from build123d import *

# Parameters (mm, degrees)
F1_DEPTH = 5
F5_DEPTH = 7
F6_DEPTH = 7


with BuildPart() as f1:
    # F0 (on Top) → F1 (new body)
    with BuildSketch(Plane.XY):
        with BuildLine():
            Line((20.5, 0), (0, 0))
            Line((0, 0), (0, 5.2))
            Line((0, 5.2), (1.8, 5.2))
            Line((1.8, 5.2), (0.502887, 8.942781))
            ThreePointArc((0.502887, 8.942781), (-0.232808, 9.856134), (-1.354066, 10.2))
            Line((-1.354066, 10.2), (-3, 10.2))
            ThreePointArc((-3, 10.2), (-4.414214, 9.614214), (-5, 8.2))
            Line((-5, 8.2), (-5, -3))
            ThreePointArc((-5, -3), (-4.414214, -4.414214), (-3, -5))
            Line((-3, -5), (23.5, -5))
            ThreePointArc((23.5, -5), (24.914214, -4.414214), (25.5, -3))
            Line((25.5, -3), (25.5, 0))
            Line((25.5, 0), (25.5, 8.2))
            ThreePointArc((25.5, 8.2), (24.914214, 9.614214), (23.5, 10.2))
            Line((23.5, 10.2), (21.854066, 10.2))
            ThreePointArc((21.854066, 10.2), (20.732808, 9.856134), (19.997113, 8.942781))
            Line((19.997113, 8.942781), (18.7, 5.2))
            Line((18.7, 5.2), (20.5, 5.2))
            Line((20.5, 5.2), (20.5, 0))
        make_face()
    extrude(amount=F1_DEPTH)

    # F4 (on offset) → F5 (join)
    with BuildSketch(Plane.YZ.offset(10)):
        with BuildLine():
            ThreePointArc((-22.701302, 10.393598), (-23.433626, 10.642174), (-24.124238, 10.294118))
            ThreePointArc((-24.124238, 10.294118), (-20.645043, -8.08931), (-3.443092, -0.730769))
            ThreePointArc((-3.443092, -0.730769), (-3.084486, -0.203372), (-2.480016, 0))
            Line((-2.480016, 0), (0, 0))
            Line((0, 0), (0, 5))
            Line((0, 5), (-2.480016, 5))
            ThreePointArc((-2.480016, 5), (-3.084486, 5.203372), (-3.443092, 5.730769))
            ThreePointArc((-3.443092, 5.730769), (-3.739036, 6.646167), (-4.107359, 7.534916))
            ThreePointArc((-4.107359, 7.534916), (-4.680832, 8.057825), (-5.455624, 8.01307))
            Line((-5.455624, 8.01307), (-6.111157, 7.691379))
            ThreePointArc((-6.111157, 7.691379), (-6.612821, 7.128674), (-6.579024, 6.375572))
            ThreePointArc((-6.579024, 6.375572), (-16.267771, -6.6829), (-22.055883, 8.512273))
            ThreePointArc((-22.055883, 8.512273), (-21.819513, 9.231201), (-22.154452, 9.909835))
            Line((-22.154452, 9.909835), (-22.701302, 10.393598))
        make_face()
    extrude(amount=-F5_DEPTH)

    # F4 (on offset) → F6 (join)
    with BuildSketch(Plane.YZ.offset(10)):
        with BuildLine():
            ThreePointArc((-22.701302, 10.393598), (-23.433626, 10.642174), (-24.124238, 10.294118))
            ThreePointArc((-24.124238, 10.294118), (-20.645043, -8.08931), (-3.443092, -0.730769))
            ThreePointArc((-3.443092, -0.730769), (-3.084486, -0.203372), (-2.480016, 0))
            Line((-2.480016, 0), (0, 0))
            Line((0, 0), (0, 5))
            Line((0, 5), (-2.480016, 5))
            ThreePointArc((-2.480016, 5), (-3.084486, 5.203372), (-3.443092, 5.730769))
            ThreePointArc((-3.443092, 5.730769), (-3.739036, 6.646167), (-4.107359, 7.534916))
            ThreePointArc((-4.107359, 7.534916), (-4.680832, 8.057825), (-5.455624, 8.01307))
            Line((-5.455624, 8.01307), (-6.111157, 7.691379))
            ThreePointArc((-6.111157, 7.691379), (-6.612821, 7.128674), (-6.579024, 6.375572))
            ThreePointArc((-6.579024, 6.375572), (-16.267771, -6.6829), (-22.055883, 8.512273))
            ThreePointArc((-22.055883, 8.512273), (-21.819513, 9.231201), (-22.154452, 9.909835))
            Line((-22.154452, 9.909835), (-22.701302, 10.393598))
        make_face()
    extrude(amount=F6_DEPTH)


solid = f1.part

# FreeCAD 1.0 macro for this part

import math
import FreeCAD as App
import Part
import Sketcher
Q = App.Units.Quantity

doc = App.newDocument("Part")
body = doc.addObject("PartDesign::Body", "Body")

# Sketch on XY plane
sketch1 = body.newObject("Sketcher::SketchObject", "Sketch")
sketch1.AttachmentSupport = (doc.getObject("XY_Plane"), [""])
sketch1.MapMode = "FlatFace"
sketch1.addGeometry(Part.LineSegment(App.Vector(20.5, 0, 0), App.Vector(0, 0, 0)), False)
sketch1.addGeometry(Part.LineSegment(App.Vector(0, 0, 0), App.Vector(0, 5.2, 0)), False)
sketch1.addGeometry(Part.LineSegment(App.Vector(0, 5.2, 0), App.Vector(1.8, 5.2, 0)), False)
sketch1.addGeometry(Part.LineSegment(App.Vector(1.8, 5.2, 0), App.Vector(0.5, 8.9, 0)), False)
sketch1.addGeometry(Part.ArcOfCircle(Part.Circle(App.Vector(-1.4, 8.2, 0), App.Vector(0, 0, 1), 2), math.radians(22), math.radians(90)), False)
sketch1.addGeometry(Part.LineSegment(App.Vector(-1.4, 10.2, 0), App.Vector(-3, 10.2, 0)), False)
sketch1.addGeometry(Part.ArcOfCircle(Part.Circle(App.Vector(-3, 8.2, 0), App.Vector(0, 0, 1), 2), math.radians(90), math.radians(180)), False)
sketch1.addGeometry(Part.LineSegment(App.Vector(-5, 8.2, 0), App.Vector(-5, -3, 0)), False)
sketch1.addGeometry(Part.ArcOfCircle(Part.Circle(App.Vector(-3, -3, 0), App.Vector(0, 0, 1), 2), math.radians(180), math.radians(270)), False)
sketch1.addGeometry(Part.LineSegment(App.Vector(-3, -5, 0), App.Vector(23.5, -5, 0)), False)
sketch1.addGeometry(Part.ArcOfCircle(Part.Circle(App.Vector(23.5, -3, 0), App.Vector(0, 0, 1), 2), math.radians(-90), math.radians(0)), False)
sketch1.addGeometry(Part.LineSegment(App.Vector(25.5, -3, 0), App.Vector(25.5, 8.2, 0)), False)
sketch1.addGeometry(Part.ArcOfCircle(Part.Circle(App.Vector(23.5, 8.2, 0), App.Vector(0, 0, 1), 2), math.radians(0), math.radians(90)), False)
sketch1.addGeometry(Part.LineSegment(App.Vector(23.5, 10.2, 0), App.Vector(21.9, 10.2, 0)), False)
sketch1.addGeometry(Part.ArcOfCircle(Part.Circle(App.Vector(21.9, 8.2, 0), App.Vector(0, 0, 1), 2), math.radians(90), math.radians(158)), False)
sketch1.addGeometry(Part.LineSegment(App.Vector(20, 8.9, 0), App.Vector(18.7, 5.2, 0)), False)
sketch1.addGeometry(Part.LineSegment(App.Vector(18.7, 5.2, 0), App.Vector(20.5, 5.2, 0)), False)
sketch1.addGeometry(Part.LineSegment(App.Vector(20.5, 5.2, 0), App.Vector(20.5, 0, 0)), False)
sketch1.addConstraint(Sketcher.Constraint("Coincident", 0, 2, 1, 1))
sketch1.addConstraint(Sketcher.Constraint("Coincident", 1, 2, 2, 1))
sketch1.addConstraint(Sketcher.Constraint("Coincident", 2, 2, 3, 1))
sketch1.addConstraint(Sketcher.Constraint("Coincident", 3, 2, 4, 1))
sketch1.addConstraint(Sketcher.Constraint("Tangent", 4, 2, 5, 1))
sketch1.addConstraint(Sketcher.Constraint("Tangent", 5, 2, 6, 1))
sketch1.addConstraint(Sketcher.Constraint("Tangent", 6, 2, 7, 1))
sketch1.addConstraint(Sketcher.Constraint("Tangent", 7, 2, 8, 1))
sketch1.addConstraint(Sketcher.Constraint("Tangent", 8, 2, 9, 1))
sketch1.addConstraint(Sketcher.Constraint("Tangent", 9, 2, 10, 1))
sketch1.addConstraint(Sketcher.Constraint("Tangent", 10, 2, 11, 1))
sketch1.addConstraint(Sketcher.Constraint("Tangent", 11, 2, 12, 1))
sketch1.addConstraint(Sketcher.Constraint("Tangent", 12, 2, 13, 1))
sketch1.addConstraint(Sketcher.Constraint("Tangent", 13, 2, 14, 1))
sketch1.addConstraint(Sketcher.Constraint("Coincident", 14, 2, 15, 1))
sketch1.addConstraint(Sketcher.Constraint("Coincident", 15, 2, 16, 1))
sketch1.addConstraint(Sketcher.Constraint("Coincident", 16, 2, 17, 1))
sketch1.addConstraint(Sketcher.Constraint("Coincident", 17, 2, 0, 1))
sketch1.addConstraint(Sketcher.Constraint("Horizontal", 0))
sketch1.addConstraint(Sketcher.Constraint("Vertical", 1))
sketch1.addConstraint(Sketcher.Constraint("Horizontal", 2))
sketch1.addConstraint(Sketcher.Constraint("Horizontal", 5))
sketch1.addConstraint(Sketcher.Constraint("Vertical", 7))
sketch1.addConstraint(Sketcher.Constraint("Horizontal", 9))
sketch1.addConstraint(Sketcher.Constraint("Vertical", 11))
sketch1.addConstraint(Sketcher.Constraint("Horizontal", 13))
sketch1.addConstraint(Sketcher.Constraint("Horizontal", 16))
sketch1.addConstraint(Sketcher.Constraint("Vertical", 17))
sketch1.addConstraint(Sketcher.Constraint("Coincident", 0, 2, -1, 1))
sketch1.addConstraint(Sketcher.Constraint("Equal", 4, 6))
sketch1.addConstraint(Sketcher.Constraint("Equal", 6, 8))
sketch1.addConstraint(Sketcher.Constraint("Equal", 8, 10))
sketch1.addConstraint(Sketcher.Constraint("Equal", 10, 12))
sketch1.addConstraint(Sketcher.Constraint("Equal", 12, 14))
sketch1.addConstraint(Sketcher.Constraint("Horizontal", 6, 3, 12, 3))
sketch1.addConstraint(Sketcher.Constraint("Horizontal", 3, 2, 14, 2))
sketch1.addConstraint(Sketcher.Constraint("Horizontal", 2, 2, 15, 2))
sketch1.addConstraint(Sketcher.Constraint("Equal", 5, 13))
sketch1.addConstraint(Sketcher.Constraint("Equal", 2, 16))
sketch1.addConstraint(Sketcher.Constraint("Equal", 3, 15))
sketch1.addConstraint(Sketcher.Constraint("Radius", 4, Q("1.999999 mm")))
sketch1.addConstraint(Sketcher.Constraint("DistanceX", 0, 2, 0, 1, Q("20.5 mm")))
sketch1.addConstraint(Sketcher.Constraint("DistanceX", 2, 1, 2, 2, Q("1.8 mm")))
sketch1.addConstraint(Sketcher.Constraint("DistanceX", 9, 1, 9, 2, Q("26.5 mm")))
sketch1.addConstraint(Sketcher.Constraint("DistanceY", 1, 1, 1, 2, Q("5.2 mm")))
sketch1.addConstraint(Sketcher.Constraint("DistanceY", 7, 2, 7, 1, Q("11.2 mm")))
sketch1.addConstraint(Sketcher.Constraint("DistanceY", 8, 3, -1, 1, Q("3.000001 mm")))
sketch1.addConstraint(Sketcher.Constraint("DistanceX", 5, 2, 5, 1, Q("1.645934 mm")))
sketch1.addConstraint(Sketcher.Constraint("DistanceY", -1, 1, 3, 2, Q("8.942781 mm")))
pad1 = body.newObject("PartDesign::Pad", "Pad")
pad1.Profile = sketch1
pad1.Length = 5

# Sketch on YZ plane
sketch2 = body.newObject("Sketcher::SketchObject", "Sketch001")
sketch2.AttachmentSupport = (doc.getObject("YZ_Plane"), [""])
sketch2.MapMode = "FlatFace"
sketch2.AttachmentOffset = App.Placement(App.Vector(0, 0, 10), App.Rotation())
sketch2.addGeometry(Part.ArcOfCircle(Part.Circle(App.Vector(-23.363884, 9.644609, 0), App.Vector(0, 0, 1), 1), math.radians(48.50288), math.radians(139.495407)), False)
sketch2.addGeometry(Part.ArcOfCircle(Part.Circle(App.Vector(-15, 2.5, 0), App.Vector(0, 0, 1), 12), math.radians(139.495343), math.radians(344.381503)), False)
sketch2.addGeometry(Part.ArcOfCircle(Part.Circle(App.Vector(-2.480016, -1.000001, 0), App.Vector(0, 0, 1), 1.000001), math.radians(90.000004), math.radians(164.381463)), False)
sketch2.addGeometry(Part.LineSegment(App.Vector(-2.480016, 0, 0), App.Vector(0, 0, 0)), False)
sketch2.addGeometry(Part.LineSegment(App.Vector(0, 0, 0), App.Vector(0, 5, 0)), False)
sketch2.addGeometry(Part.LineSegment(App.Vector(0, 5, 0), App.Vector(-2.480016, 5, 0)), False)
sketch2.addGeometry(Part.ArcOfCircle(Part.Circle(App.Vector(-2.480016, 6.000001, 0), App.Vector(0, 0, 1), 1.000001), math.radians(-164.381463), math.radians(-90.000004)), False)
sketch2.addGeometry(Part.ArcOfCircle(Part.Circle(App.Vector(-14.999855, 2.500058, 0), App.Vector(0, 0, 1), 11.999844), math.radians(15.618418), math.radians(24.807881)), False)
sketch2.addGeometry(Part.ArcOfCircle(Part.Circle(App.Vector(-5.015079, 7.115339, 0), App.Vector(0, 0, 1), 1), math.radians(24.807855), math.radians(116.13866)), False)
sketch2.addGeometry(Part.LineSegment(App.Vector(-5.455624, 8.01307, 0), App.Vector(-6.111157, 7.691379, 0)), False)
sketch2.addGeometry(Part.ArcOfCircle(Part.Circle(App.Vector(-5.670612, 6.793648, 0), App.Vector(0, 0, 1), 1), math.radians(116.138672), math.radians(204.713181)), False)
sketch2.addGeometry(Part.ArcOfCircle(Part.Circle(App.Vector(-15, 2.5, 0), App.Vector(0, 0, 1), 9.27), math.radians(139.565894), math.radians(384.713225)), False)
sketch2.addGeometry(Part.ArcOfCircle(Part.Circle(App.Vector(-22.817035, 9.160847, 0), App.Vector(0, 0, 1), 1), math.radians(-40.434132), math.radians(48.502828)), False)
sketch2.addGeometry(Part.LineSegment(App.Vector(-22.154452, 9.909835, 0), App.Vector(-22.701302, 10.393598, 0)), False)
sketch2.addConstraint(Sketcher.Constraint("Coincident", 0, 2, 1, 1))
sketch2.addConstraint(Sketcher.Constraint("Coincident", 1, 2, 2, 2))
sketch2.addConstraint(Sketcher.Constraint("Coincident", 2, 1, 3, 1))
sketch2.addConstraint(Sketcher.Constraint("Coincident", 3, 2, 4, 1))
sketch2.addConstraint(Sketcher.Constraint("Coincident", 4, 2, 5, 1))
sketch2.addConstraint(Sketcher.Constraint("Coincident", 5, 2, 6, 2))
sketch2.addConstraint(Sketcher.Constraint("Coincident", 6, 1, 7, 1))
sketch2.addConstraint(Sketcher.Constraint("Coincident", 7, 2, 8, 1))
sketch2.addConstraint(Sketcher.Constraint("Coincident", 8, 2, 9, 1))
sketch2.addConstraint(Sketcher.Constraint("Coincident", 9, 2, 10, 1))
sketch2.addConstraint(Sketcher.Constraint("Coincident", 10, 2, 11, 2))
sketch2.addConstraint(Sketcher.Constraint("Coincident", 11, 1, 12, 1))
sketch2.addConstraint(Sketcher.Constraint("Coincident", 12, 2, 13, 1))
sketch2.addConstraint(Sketcher.Constraint("Coincident", 13, 2, 0, 1))
sketch2.addConstraint(Sketcher.Constraint("Horizontal", 3))
sketch2.addConstraint(Sketcher.Constraint("Vertical", 4))
sketch2.addConstraint(Sketcher.Constraint("Horizontal", 5))
sketch2.addConstraint(Sketcher.Constraint("Coincident", 3, 2, -1, 1))
sketch2.addConstraint(Sketcher.Constraint("Coincident", 11, 3, 1, 3))
sketch2.addConstraint(Sketcher.Constraint("Radius", 0, Q("1 mm")))
sketch2.addConstraint(Sketcher.Constraint("Radius", 1, Q("12 mm")))
sketch2.addConstraint(Sketcher.Constraint("Radius", 2, Q("1.000001 mm")))
sketch2.addConstraint(Sketcher.Constraint("Radius", 6, Q("1.000001 mm")))
sketch2.addConstraint(Sketcher.Constraint("Radius", 8, Q("1 mm")))
sketch2.addConstraint(Sketcher.Constraint("Radius", 10, Q("1 mm")))
sketch2.addConstraint(Sketcher.Constraint("Radius", 12, Q("1 mm")))
sketch2.addConstraint(Sketcher.Constraint("DistanceY", 4, 1, 4, 2, Q("5 mm")))
sketch2.addConstraint(Sketcher.Constraint("Radius", 11, Q("9.27 mm")))
sketch2.addConstraint(Sketcher.Constraint("DistanceX", 1, 3, -1, 1, Q("15 mm")))
sketch2.addConstraint(Sketcher.Constraint("DistanceY", -1, 1, 1, 3, Q("2.5 mm")))
sketch2.addConstraint(Sketcher.Constraint("Radius", 7, Q("11.999844 mm")))
sketch2.addConstraint(Sketcher.Constraint("DistanceX", 0, 3, 11, 1, Q("1.308001 mm")))
sketch2.addConstraint(Sketcher.Constraint("DistanceX", 13, 2, -1, 1, Q("22.701302 mm")))
sketch2.addConstraint(Sketcher.Constraint("DistanceY", -1, 1, 13, 2, Q("10.393598 mm")))
sketch2.addConstraint(Sketcher.Constraint("DistanceY", 10, 3, 12, 3, Q("2.367198 mm")))
sketch2.addConstraint(Sketcher.Constraint("DistanceY", 6, 1, 8, 2, Q("2.282301 mm")))
sketch2.addConstraint(Sketcher.Constraint("DistanceX", 9, 2, 7, 2, Q("2.003798 mm")))
sketch2.addConstraint(Sketcher.Constraint("DistanceX", 10, 2, 8, 2, Q("1.1234 mm")))
sketch2.addConstraint(Sketcher.Constraint("Distance", 9, Q("0.730211 mm")))
sketch2.addConstraint(Sketcher.Constraint("DistanceX", 3, 1, 3, 2, Q("2.480016 mm")))
sketch2.addConstraint(Sketcher.Constraint("DistanceX", 5, 2, 5, 1, Q("2.480016 mm")))
sketch2.addConstraint(Sketcher.Constraint("DistanceX", 8, 3, -1, 1, Q("5.015079 mm")))
sketch2.addConstraint(Sketcher.Constraint("DistanceY", -1, 1, 8, 3, Q("7.115339 mm")))
sketch2.addConstraint(Sketcher.Constraint("DistanceX", 10, 3, -1, 1, Q("5.670612 mm")))
sketch2.addConstraint(Sketcher.Constraint("DistanceX", 1, 2, -1, 1, Q("3.443092 mm")))
sketch2.addConstraint(Sketcher.Constraint("DistanceX", 6, 1, -1, 1, Q("3.443092 mm")))
sketch2.addConstraint(Sketcher.Constraint("DistanceY", -1, 1, 6, 1, Q("5.730769 mm")))
sketch2.addConstraint(Sketcher.Constraint("DistanceX", 12, 2, -1, 1, Q("22.154452 mm")))
sketch2.addConstraint(Sketcher.Constraint("DistanceY", 0, 3, 0, 2, Q("0.649509 mm")))
pad2 = body.newObject("PartDesign::Pad", "Pad001")
pad2.Profile = sketch2
pad2.Length = 7
pad2.Reversed = True

# Sketch on YZ plane
sketch3 = body.newObject("Sketcher::SketchObject", "Sketch002")
sketch3.AttachmentSupport = (doc.getObject("YZ_Plane"), [""])
sketch3.MapMode = "FlatFace"
sketch3.AttachmentOffset = App.Placement(App.Vector(0, 0, 10), App.Rotation())
sketch3.addGeometry(Part.ArcOfCircle(Part.Circle(App.Vector(-23.363884, 9.644609, 0), App.Vector(0, 0, 1), 1), math.radians(48.50288), math.radians(139.495407)), False)
sketch3.addGeometry(Part.ArcOfCircle(Part.Circle(App.Vector(-15, 2.5, 0), App.Vector(0, 0, 1), 12), math.radians(139.495343), math.radians(344.381503)), False)
sketch3.addGeometry(Part.ArcOfCircle(Part.Circle(App.Vector(-2.480016, -1.000001, 0), App.Vector(0, 0, 1), 1.000001), math.radians(90.000004), math.radians(164.381463)), False)
sketch3.addGeometry(Part.LineSegment(App.Vector(-2.480016, 0, 0), App.Vector(0, 0, 0)), False)
sketch3.addGeometry(Part.LineSegment(App.Vector(0, 0, 0), App.Vector(0, 5, 0)), False)
sketch3.addGeometry(Part.LineSegment(App.Vector(0, 5, 0), App.Vector(-2.480016, 5, 0)), False)
sketch3.addGeometry(Part.ArcOfCircle(Part.Circle(App.Vector(-2.480016, 6.000001, 0), App.Vector(0, 0, 1), 1.000001), math.radians(-164.381463), math.radians(-90.000004)), False)
sketch3.addGeometry(Part.ArcOfCircle(Part.Circle(App.Vector(-14.999855, 2.500058, 0), App.Vector(0, 0, 1), 11.999844), math.radians(15.618418), math.radians(24.807881)), False)
sketch3.addGeometry(Part.ArcOfCircle(Part.Circle(App.Vector(-5.015079, 7.115339, 0), App.Vector(0, 0, 1), 1), math.radians(24.807855), math.radians(116.13866)), False)
sketch3.addGeometry(Part.LineSegment(App.Vector(-5.455624, 8.01307, 0), App.Vector(-6.111157, 7.691379, 0)), False)
sketch3.addGeometry(Part.ArcOfCircle(Part.Circle(App.Vector(-5.670612, 6.793648, 0), App.Vector(0, 0, 1), 1), math.radians(116.138672), math.radians(204.713181)), False)
sketch3.addGeometry(Part.ArcOfCircle(Part.Circle(App.Vector(-15, 2.5, 0), App.Vector(0, 0, 1), 9.27), math.radians(139.565894), math.radians(384.713225)), False)
sketch3.addGeometry(Part.ArcOfCircle(Part.Circle(App.Vector(-22.817035, 9.160847, 0), App.Vector(0, 0, 1), 1), math.radians(-40.434132), math.radians(48.502828)), False)
sketch3.addGeometry(Part.LineSegment(App.Vector(-22.154452, 9.909835, 0), App.Vector(-22.701302, 10.393598, 0)), False)
sketch3.addConstraint(Sketcher.Constraint("Coincident", 0, 2, 1, 1))
sketch3.addConstraint(Sketcher.Constraint("Coincident", 1, 2, 2, 2))
sketch3.addConstraint(Sketcher.Constraint("Coincident", 2, 1, 3, 1))
sketch3.addConstraint(Sketcher.Constraint("Coincident", 3, 2, 4, 1))
sketch3.addConstraint(Sketcher.Constraint("Coincident", 4, 2, 5, 1))
sketch3.addConstraint(Sketcher.Constraint("Coincident", 5, 2, 6, 2))
sketch3.addConstraint(Sketcher.Constraint("Coincident", 6, 1, 7, 1))
sketch3.addConstraint(Sketcher.Constraint("Coincident", 7, 2, 8, 1))
sketch3.addConstraint(Sketcher.Constraint("Coincident", 8, 2, 9, 1))
sketch3.addConstraint(Sketcher.Constraint("Coincident", 9, 2, 10, 1))
sketch3.addConstraint(Sketcher.Constraint("Coincident", 10, 2, 11, 2))
sketch3.addConstraint(Sketcher.Constraint("Coincident", 11, 1, 12, 1))
sketch3.addConstraint(Sketcher.Constraint("Coincident", 12, 2, 13, 1))
sketch3.addConstraint(Sketcher.Constraint("Coincident", 13, 2, 0, 1))
sketch3.addConstraint(Sketcher.Constraint("Horizontal", 3))
sketch3.addConstraint(Sketcher.Constraint("Vertical", 4))
sketch3.addConstraint(Sketcher.Constraint("Horizontal", 5))
sketch3.addConstraint(Sketcher.Constraint("Coincident", 3, 2, -1, 1))
sketch3.addConstraint(Sketcher.Constraint("Coincident", 11, 3, 1, 3))
sketch3.addConstraint(Sketcher.Constraint("Radius", 0, Q("1 mm")))
sketch3.addConstraint(Sketcher.Constraint("Radius", 1, Q("12 mm")))
sketch3.addConstraint(Sketcher.Constraint("Radius", 2, Q("1.000001 mm")))
sketch3.addConstraint(Sketcher.Constraint("Radius", 6, Q("1.000001 mm")))
sketch3.addConstraint(Sketcher.Constraint("Radius", 8, Q("1 mm")))
sketch3.addConstraint(Sketcher.Constraint("Radius", 10, Q("1 mm")))
sketch3.addConstraint(Sketcher.Constraint("Radius", 12, Q("1 mm")))
sketch3.addConstraint(Sketcher.Constraint("DistanceY", 4, 1, 4, 2, Q("5 mm")))
sketch3.addConstraint(Sketcher.Constraint("Radius", 11, Q("9.27 mm")))
sketch3.addConstraint(Sketcher.Constraint("DistanceX", 1, 3, -1, 1, Q("15 mm")))
sketch3.addConstraint(Sketcher.Constraint("DistanceY", -1, 1, 1, 3, Q("2.5 mm")))
sketch3.addConstraint(Sketcher.Constraint("Radius", 7, Q("11.999844 mm")))
sketch3.addConstraint(Sketcher.Constraint("DistanceX", 0, 3, 11, 1, Q("1.308001 mm")))
sketch3.addConstraint(Sketcher.Constraint("DistanceX", 13, 2, -1, 1, Q("22.701302 mm")))
sketch3.addConstraint(Sketcher.Constraint("DistanceY", -1, 1, 13, 2, Q("10.393598 mm")))
sketch3.addConstraint(Sketcher.Constraint("DistanceY", 10, 3, 12, 3, Q("2.367198 mm")))
sketch3.addConstraint(Sketcher.Constraint("DistanceY", 6, 1, 8, 2, Q("2.282301 mm")))
sketch3.addConstraint(Sketcher.Constraint("DistanceX", 9, 2, 7, 2, Q("2.003798 mm")))
sketch3.addConstraint(Sketcher.Constraint("DistanceX", 10, 2, 8, 2, Q("1.1234 mm")))
sketch3.addConstraint(Sketcher.Constraint("Distance", 9, Q("0.730211 mm")))
sketch3.addConstraint(Sketcher.Constraint("DistanceX", 3, 1, 3, 2, Q("2.480016 mm")))
sketch3.addConstraint(Sketcher.Constraint("DistanceX", 5, 2, 5, 1, Q("2.480016 mm")))
sketch3.addConstraint(Sketcher.Constraint("DistanceX", 8, 3, -1, 1, Q("5.015079 mm")))
sketch3.addConstraint(Sketcher.Constraint("DistanceY", -1, 1, 8, 3, Q("7.115339 mm")))
sketch3.addConstraint(Sketcher.Constraint("DistanceX", 10, 3, -1, 1, Q("5.670612 mm")))
sketch3.addConstraint(Sketcher.Constraint("DistanceX", 1, 2, -1, 1, Q("3.443092 mm")))
sketch3.addConstraint(Sketcher.Constraint("DistanceX", 6, 1, -1, 1, Q("3.443092 mm")))
sketch3.addConstraint(Sketcher.Constraint("DistanceY", -1, 1, 6, 1, Q("5.730769 mm")))
sketch3.addConstraint(Sketcher.Constraint("DistanceX", 12, 2, -1, 1, Q("22.154452 mm")))
sketch3.addConstraint(Sketcher.Constraint("DistanceY", 0, 3, 0, 2, Q("0.649509 mm")))
pad3 = body.newObject("PartDesign::Pad", "Pad002")
pad3.Profile = sketch3
pad3.Length = 7

doc.recompute()
